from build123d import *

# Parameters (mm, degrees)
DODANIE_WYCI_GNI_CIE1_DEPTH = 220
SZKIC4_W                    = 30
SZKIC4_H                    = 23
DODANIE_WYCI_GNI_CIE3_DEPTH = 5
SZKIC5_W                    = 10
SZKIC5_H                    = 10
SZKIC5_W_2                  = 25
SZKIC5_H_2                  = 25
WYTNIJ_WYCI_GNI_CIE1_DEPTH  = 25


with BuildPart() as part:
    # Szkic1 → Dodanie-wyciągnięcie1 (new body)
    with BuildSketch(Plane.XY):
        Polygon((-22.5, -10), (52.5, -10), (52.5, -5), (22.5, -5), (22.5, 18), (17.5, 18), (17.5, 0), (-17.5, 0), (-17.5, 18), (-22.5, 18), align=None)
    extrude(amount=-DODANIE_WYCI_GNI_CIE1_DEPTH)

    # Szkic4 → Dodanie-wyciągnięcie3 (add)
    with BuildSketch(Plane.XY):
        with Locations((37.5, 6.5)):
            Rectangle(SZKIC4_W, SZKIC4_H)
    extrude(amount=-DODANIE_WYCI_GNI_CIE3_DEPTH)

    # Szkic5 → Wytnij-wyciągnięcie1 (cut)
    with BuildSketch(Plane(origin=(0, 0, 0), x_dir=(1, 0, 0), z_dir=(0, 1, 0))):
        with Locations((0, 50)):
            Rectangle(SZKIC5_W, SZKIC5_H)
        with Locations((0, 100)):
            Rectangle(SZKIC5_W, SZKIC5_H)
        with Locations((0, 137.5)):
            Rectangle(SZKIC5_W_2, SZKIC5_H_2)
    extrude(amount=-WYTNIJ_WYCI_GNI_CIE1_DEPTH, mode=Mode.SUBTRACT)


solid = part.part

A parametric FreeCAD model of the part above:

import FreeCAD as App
import Part
import Sketcher

doc = App.newDocument("Part")
body = doc.addObject("PartDesign::Body", "Body")

# Sketch on XY plane
sketch1 = doc.addObject("Sketcher::SketchObject", "Sketch")
body.addObject(sketch1)
sketch1.AttachmentSupport = (doc.XY_Plane, [""])
sketch1.MapMode = "FlatFace"
sketch1.addGeometry([
    Part.LineSegment(App.Vector(-22, -10, 0), App.Vector(52, -10, 0)),  # 0
    Part.LineSegment(App.Vector(52, -10, 0), App.Vector(52, -5, 0)),  # 1
    Part.LineSegment(App.Vector(52, -5, 0), App.Vector(22, -5, 0)),  # 2
    Part.LineSegment(App.Vector(22, -5, 0), App.Vector(22, 18, 0)),  # 3
    Part.LineSegment(App.Vector(22, 18, 0), App.Vector(18, 18, 0)),  # 4
    Part.LineSegment(App.Vector(18, 18, 0), App.Vector(18, 0, 0)),  # 5
    Part.LineSegment(App.Vector(18, 0, 0), App.Vector(-18, 0, 0)),  # 6
    Part.LineSegment(App.Vector(-18, 0, 0), App.Vector(-18, 18, 0)),  # 7
    Part.LineSegment(App.Vector(-18, 18, 0), App.Vector(-22, 18, 0)),  # 8
    Part.LineSegment(App.Vector(-22, 18, 0), App.Vector(-22, -10, 0)),  # 9
], False)
sketch1.addConstraint([
    Sketcher.Constraint("Coincident", 0, 2, 1, 1),
    Sketcher.Constraint("Coincident", 1, 2, 2, 1),
    Sketcher.Constraint("Coincident", 2, 2, 3, 1),
    Sketcher.Constraint("Coincident", 3, 2, 4, 1),
    Sketcher.Constraint("Coincident", 4, 2, 5, 1),
    Sketcher.Constraint("Coincident", 5, 2, 6, 1),
    Sketcher.Constraint("Coincident", 6, 2, 7, 1),
    Sketcher.Constraint("Coincident", 7, 2, 8, 1),
    Sketcher.Constraint("Coincident", 8, 2, 9, 1),
    Sketcher.Constraint("Coincident", 9, 2, 0, 1),
    Sketcher.Constraint("Horizontal", 0),
    Sketcher.Constraint("Vertical", 1),
    Sketcher.Constraint("Horizontal", 2),
    Sketcher.Constraint("Vertical", 3),
    Sketcher.Constraint("Horizontal", 4),
    Sketcher.Constraint("Vertical", 5),
    Sketcher.Constraint("Horizontal", 6),
    Sketcher.Constraint("Vertical", 7),
    Sketcher.Constraint("Horizontal", 8),
    Sketcher.Constraint("Vertical", 9),
    Sketcher.Constraint("Symmetric", 5, 2, 6, 2, -1, 1),
    Sketcher.Constraint("Symmetric", 3, 2, 8, 2, -2),
    Sketcher.Constraint("Equal", 8, 1),
    Sketcher.Constraint("DistanceX", 0, 1, 0, 2, 75.0),
    Sketcher.Constraint("DistanceX", 2, 2, 2, 1, 30.0),
    Sketcher.Constraint("DistanceX", 4, 2, 4, 1, 5.0),
    Sketcher.Constraint("DistanceY", 3, 1, 3, 2, 23.0),
    Sketcher.Constraint("DistanceY", 5, 2, 5, 1, 18.0),
])
pad1 = doc.addObject("PartDesign::Pad", "Pad")
body.addObject(pad1)
pad1.Profile = sketch1
pad1.Length = 220
pad1.Reversed = True

# Sketch on XY plane
sketch2 = doc.addObject("Sketcher::SketchObject", "Sketch001")
body.addObject(sketch2)
sketch2.AttachmentSupport = (doc.XY_Plane, [""])
sketch2.MapMode = "FlatFace"
sketch2.addGeometry([
    Part.LineSegment(App.Vector(22, 18, 0), App.Vector(22, -5, 0)),
    Part.LineSegment(App.Vector(22, -5, 0), App.Vector(52, -5, 0)),
    Part.LineSegment(App.Vector(52, -5, 0), App.Vector(52, 18, 0)),
    Part.LineSegment(App.Vector(52, 18, 0), App.Vector(22, 18, 0)),
], False)
sketch2.addConstraint([
    Sketcher.Constraint("Coincident", 0, 2, 1, 1),
    Sketcher.Constraint("Coincident", 1, 2, 2, 1),
    Sketcher.Constraint("Coincident", 2, 2, 3, 1),
    Sketcher.Constraint("Coincident", 3, 2, 0, 1),
    Sketcher.Constraint("Vertical", 0),
    Sketcher.Constraint("Horizontal", 1),
    Sketcher.Constraint("Vertical", 2),
    Sketcher.Constraint("Horizontal", 3),
    Sketcher.Constraint("DistanceX", 1, 1, 1, 2, 30.0),
    Sketcher.Constraint("DistanceY", 0, 2, 0, 1, 23.0),
    Sketcher.Constraint("DistanceY", 0, 2, -1, 1, 5.0),
    Sketcher.Constraint("DistanceX", -1, 1, 0, 2, 22.5),
])
pad2 = doc.addObject("PartDesign::Pad", "Pad001")
body.addObject(pad2)
pad2.Profile = sketch2
pad2.Length = 5
pad2.Reversed = True

# Sketch on XZ plane
sketch3 = doc.addObject("Sketcher::SketchObject", "Sketch002")
body.addObject(sketch3)
sketch3.AttachmentSupport = (doc.XZ_Plane, [""])
sketch3.MapMode = "FlatFace"
sketch3.addGeometry([
    Part.LineSegment(App.Vector(-5, -55, 0), App.Vector(-5, -45, 0)),  # 0
    Part.LineSegment(App.Vector(-5, -45, 0), App.Vector(5, -45, 0)),  # 1
    Part.LineSegment(App.Vector(5, -45, 0), App.Vector(5, -55, 0)),  # 2
    Part.LineSegment(App.Vector(5, -55, 0), App.Vector(-5, -55, 0)),  # 3
    Part.LineSegment(App.Vector(-5, -105, 0), App.Vector(-5, -95, 0)),  # 4
    Part.LineSegment(App.Vector(-5, -95, 0), App.Vector(5, -95, 0)),  # 5
    Part.LineSegment(App.Vector(5, -95, 0), App.Vector(5, -105, 0)),  # 6
    Part.LineSegment(App.Vector(5, -105, 0), App.Vector(-5, -105, 0)),  # 7
    Part.LineSegment(App.Vector(-12, -150, 0), App.Vector(-12, -125, 0)),  # 8
    Part.LineSegment(App.Vector(-12, -125, 0), App.Vector(12, -125, 0)),  # 9
    Part.LineSegment(App.Vector(12, -125, 0), App.Vector(12, -150, 0)),  # 10
    Part.LineSegment(App.Vector(12, -150, 0), App.Vector(-12, -150, 0)),  # 11
], False)
sketch3.addConstraint([
    Sketcher.Constraint("Coincident", 0, 2, 1, 1),
    Sketcher.Constraint("Coincident", 1, 2, 2, 1),
    Sketcher.Constraint("Coincident", 2, 2, 3, 1),
    Sketcher.Constraint("Coincident", 3, 2, 0, 1),
    Sketcher.Constraint("Coincident", 4, 2, 5, 1),
    Sketcher.Constraint("Coincident", 5, 2, 6, 1),
    Sketcher.Constraint("Coincident", 6, 2, 7, 1),
    Sketcher.Constraint("Coincident", 7, 2, 4, 1),
    Sketcher.Constraint("Coincident", 8, 2, 9, 1),
    Sketcher.Constraint("Coincident", 9, 2, 10, 1),
    Sketcher.Constraint("Coincident", 10, 2, 11, 1),
    Sketcher.Constraint("Coincident", 11, 2, 8, 1),
    Sketcher.Constraint("Vertical", 0),
    Sketcher.Constraint("Horizontal", 1),
    Sketcher.Constraint("Vertical", 2),
    Sketcher.Constraint("Horizontal", 3),
    Sketcher.Constraint("Vertical", 4),
    Sketcher.Constraint("Horizontal", 5),
    Sketcher.Constraint("Vertical", 6),
    Sketcher.Constraint("Horizontal", 7),
    Sketcher.Constraint("Vertical", 8),
    Sketcher.Constraint("Horizontal", 9),
    Sketcher.Constraint("Vertical", 10),
    Sketcher.Constraint("Horizontal", 11),
    Sketcher.Constraint("Vertical", 3, 2, 4, 2),
    Sketcher.Constraint("Vertical", 2, 2, 5, 2),
    Sketcher.Constraint("Equal", 7, 0),
    Sketcher.Constraint("Equal", 2, 4),
    Sketcher.Constraint("Equal", 11, 8),
    Sketcher.Constraint("DistanceX", 1, 1, 1, 2, 10.0),
    Sketcher.Constraint("DistanceX", 9, 1, 9, 2, 25.0),
    Sketcher.Constraint("DistanceX", 0, 2, -1, 1, 5.0),
    Sketcher.Constraint("DistanceY", 0, 2, -1, 1, 45.0),
    Sketcher.Constraint("DistanceY", 4, 2, -1, 1, 95.0),
    Sketcher.Constraint("DistanceY", 8, 2, -1, 1, 125.0),
    Sketcher.Constraint("DistanceX", 8, 2, -1, 1, 12.5),
])
pocket1 = doc.addObject("PartDesign::Pocket", "Pocket")
body.addObject(pocket1)
pocket1.Profile = sketch3
pocket1.Length = 25
pocket1.Reversed = True

doc.recompute()
